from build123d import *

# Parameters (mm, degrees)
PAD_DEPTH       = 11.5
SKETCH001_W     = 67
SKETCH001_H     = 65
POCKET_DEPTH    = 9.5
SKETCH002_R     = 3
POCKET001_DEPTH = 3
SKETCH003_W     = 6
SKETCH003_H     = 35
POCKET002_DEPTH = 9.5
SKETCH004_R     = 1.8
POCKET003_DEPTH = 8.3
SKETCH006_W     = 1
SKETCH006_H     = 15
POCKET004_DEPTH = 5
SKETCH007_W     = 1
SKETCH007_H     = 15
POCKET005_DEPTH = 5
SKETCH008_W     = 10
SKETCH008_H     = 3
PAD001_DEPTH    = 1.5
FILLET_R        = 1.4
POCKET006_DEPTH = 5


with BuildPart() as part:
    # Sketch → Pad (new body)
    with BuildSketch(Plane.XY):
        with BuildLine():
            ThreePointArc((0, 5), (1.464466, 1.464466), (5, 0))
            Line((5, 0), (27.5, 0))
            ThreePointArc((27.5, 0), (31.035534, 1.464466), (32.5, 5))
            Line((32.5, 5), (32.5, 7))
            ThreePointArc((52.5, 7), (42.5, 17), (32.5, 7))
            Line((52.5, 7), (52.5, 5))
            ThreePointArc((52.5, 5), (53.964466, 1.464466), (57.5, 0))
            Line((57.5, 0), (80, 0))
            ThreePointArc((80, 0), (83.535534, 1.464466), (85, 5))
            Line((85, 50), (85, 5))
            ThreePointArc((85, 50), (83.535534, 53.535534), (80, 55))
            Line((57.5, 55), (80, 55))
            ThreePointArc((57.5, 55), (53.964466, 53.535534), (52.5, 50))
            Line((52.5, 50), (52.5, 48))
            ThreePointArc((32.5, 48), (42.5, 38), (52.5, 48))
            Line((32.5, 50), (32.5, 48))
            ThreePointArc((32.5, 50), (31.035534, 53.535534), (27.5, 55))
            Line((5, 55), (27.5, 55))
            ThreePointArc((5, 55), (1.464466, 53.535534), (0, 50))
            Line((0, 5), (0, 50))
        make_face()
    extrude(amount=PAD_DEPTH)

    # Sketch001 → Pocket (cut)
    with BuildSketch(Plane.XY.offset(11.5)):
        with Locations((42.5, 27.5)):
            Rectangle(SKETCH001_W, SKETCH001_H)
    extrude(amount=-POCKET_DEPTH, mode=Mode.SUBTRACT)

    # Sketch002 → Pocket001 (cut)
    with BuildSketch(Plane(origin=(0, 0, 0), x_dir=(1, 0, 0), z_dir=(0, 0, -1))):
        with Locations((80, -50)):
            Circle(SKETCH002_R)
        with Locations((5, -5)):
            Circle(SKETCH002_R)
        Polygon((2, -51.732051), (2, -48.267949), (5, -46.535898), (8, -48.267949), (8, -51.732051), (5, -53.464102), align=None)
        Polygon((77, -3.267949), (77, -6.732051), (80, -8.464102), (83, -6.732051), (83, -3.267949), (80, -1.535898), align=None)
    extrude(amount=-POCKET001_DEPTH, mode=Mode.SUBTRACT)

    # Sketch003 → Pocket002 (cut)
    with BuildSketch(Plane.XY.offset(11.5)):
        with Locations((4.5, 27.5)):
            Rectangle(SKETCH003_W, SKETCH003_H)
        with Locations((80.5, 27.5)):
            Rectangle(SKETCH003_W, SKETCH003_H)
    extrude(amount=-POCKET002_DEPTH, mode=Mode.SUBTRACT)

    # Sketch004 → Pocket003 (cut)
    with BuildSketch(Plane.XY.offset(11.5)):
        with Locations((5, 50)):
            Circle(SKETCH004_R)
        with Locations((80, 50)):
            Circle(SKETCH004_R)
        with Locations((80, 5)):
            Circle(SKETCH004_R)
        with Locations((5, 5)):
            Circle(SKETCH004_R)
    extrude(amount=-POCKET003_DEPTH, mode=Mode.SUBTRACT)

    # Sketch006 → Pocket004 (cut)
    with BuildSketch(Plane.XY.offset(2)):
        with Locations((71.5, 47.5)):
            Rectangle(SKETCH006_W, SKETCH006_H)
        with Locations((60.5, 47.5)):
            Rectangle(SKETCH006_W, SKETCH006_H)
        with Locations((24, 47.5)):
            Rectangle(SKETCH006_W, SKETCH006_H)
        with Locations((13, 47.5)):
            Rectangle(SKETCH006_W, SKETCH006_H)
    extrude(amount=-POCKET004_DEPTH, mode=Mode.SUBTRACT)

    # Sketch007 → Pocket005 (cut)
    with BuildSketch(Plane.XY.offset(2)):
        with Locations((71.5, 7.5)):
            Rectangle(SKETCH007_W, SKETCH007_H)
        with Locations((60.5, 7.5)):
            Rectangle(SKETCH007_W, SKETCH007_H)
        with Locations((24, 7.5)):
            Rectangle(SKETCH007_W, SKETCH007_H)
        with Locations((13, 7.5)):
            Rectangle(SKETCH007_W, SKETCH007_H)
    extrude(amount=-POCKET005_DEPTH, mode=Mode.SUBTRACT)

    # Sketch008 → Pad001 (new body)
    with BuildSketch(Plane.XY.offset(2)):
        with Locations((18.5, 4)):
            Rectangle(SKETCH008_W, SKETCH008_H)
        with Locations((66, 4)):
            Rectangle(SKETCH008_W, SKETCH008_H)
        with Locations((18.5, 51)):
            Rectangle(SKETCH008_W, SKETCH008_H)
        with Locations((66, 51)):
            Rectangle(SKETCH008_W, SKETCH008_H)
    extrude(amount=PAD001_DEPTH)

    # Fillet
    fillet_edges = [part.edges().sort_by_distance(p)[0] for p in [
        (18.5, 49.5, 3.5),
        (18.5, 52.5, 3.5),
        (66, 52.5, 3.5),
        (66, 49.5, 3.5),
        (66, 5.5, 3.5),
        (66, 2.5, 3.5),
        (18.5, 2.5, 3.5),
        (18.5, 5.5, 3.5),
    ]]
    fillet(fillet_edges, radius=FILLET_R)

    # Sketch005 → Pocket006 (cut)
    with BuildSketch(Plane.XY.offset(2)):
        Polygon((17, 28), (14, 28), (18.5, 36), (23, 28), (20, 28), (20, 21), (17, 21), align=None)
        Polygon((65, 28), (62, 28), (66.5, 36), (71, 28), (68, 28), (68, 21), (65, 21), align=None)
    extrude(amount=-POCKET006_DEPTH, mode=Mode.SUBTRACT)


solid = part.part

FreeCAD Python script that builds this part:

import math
import FreeCAD as App
import Part
import Sketcher

V = App.Vector
Q = App.Units.Quantity


def edges_at(feature, points):
    """Names of the edges that pass closest to the given points."""
    edges = feature.Shape.Edges
    near = lambda p: min(range(len(edges)), key=lambda i: edges[i].distToShape(Part.Vertex(*p))[0])
    return sorted({f"Edge{near(p) + 1}" for p in points})

doc = App.newDocument("Part")
body = doc.addObject("PartDesign::Body", "Body")

# Sketch on XY plane
sketch1 = body.newObject("Sketcher::SketchObject", "Sketch")
sketch1.AttachmentSupport = (doc.getObject("XY_Plane"), [""])
sketch1.MapMode = "FlatFace"
sketch1.addGeometry([
    Part.ArcOfCircle(Part.Circle(V(5, 5, 0), V(0, 0, 1), 5), math.radians(180), math.radians(270)),  # 0
    Part.LineSegment(V(5, 0, 0), V(27.5, 0, 0)),  # 1
    Part.ArcOfCircle(Part.Circle(V(27.5, 5, 0), V(0, 0, 1), 5), math.radians(-90), math.radians(0)),  # 2
    Part.LineSegment(V(32.5, 5, 0), V(32.5, 7, 0)),  # 3
    Part.ArcOfCircle(Part.Circle(V(42.5, 7, 0), V(0, 0, 1), 10), math.radians(0), math.radians(180)),  # 4
    Part.LineSegment(V(52.5, 7, 0), V(52.5, 5, 0)),  # 5
    Part.ArcOfCircle(Part.Circle(V(57.5, 5, 0), V(0, 0, 1), 5), math.radians(180), math.radians(270)),  # 6
    Part.LineSegment(V(57.5, 0, 0), V(80, 0, 0)),  # 7
    Part.ArcOfCircle(Part.Circle(V(80, 5, 0), V(0, 0, 1), 5), math.radians(-90), math.radians(0)),  # 8
    Part.LineSegment(V(85, 5, 0), V(85, 50, 0)),  # 9
    Part.ArcOfCircle(Part.Circle(V(80, 50, 0), V(0, 0, 1), 5), math.radians(0), math.radians(90)),  # 10
    Part.LineSegment(V(80, 55, 0), V(57.5, 55, 0)),  # 11
    Part.ArcOfCircle(Part.Circle(V(57.5, 50, 0), V(0, 0, 1), 5), math.radians(90), math.radians(180)),  # 12
    Part.LineSegment(V(52.5, 50, 0), V(52.5, 48, 0)),  # 13
    Part.ArcOfCircle(Part.Circle(V(42.5, 48, 0), V(0, 0, 1), 10), math.radians(180), math.radians(360)),  # 14
    Part.LineSegment(V(32.5, 48, 0), V(32.5, 50, 0)),  # 15
    Part.ArcOfCircle(Part.Circle(V(27.5, 50, 0), V(0, 0, 1), 5), math.radians(0), math.radians(90)),  # 16
    Part.LineSegment(V(27.5, 55, 0), V(5, 55, 0)),  # 17
    Part.ArcOfCircle(Part.Circle(V(5, 50, 0), V(0, 0, 1), 5), math.radians(90), math.radians(180)),  # 18
    Part.LineSegment(V(0, 50, 0), V(0, 5, 0)),  # 19
], False)
sketch1.addConstraint([
    Sketcher.Constraint("Tangent", 0, 2, 1, 1),
    Sketcher.Constraint("Tangent", 1, 2, 2, 1),
    Sketcher.Constraint("Tangent", 2, 2, 3, 1),
    Sketcher.Constraint("Tangent", 3, 2, 4, 2),
    Sketcher.Constraint("Tangent", 4, 1, 5, 1),
    Sketcher.Constraint("Tangent", 5, 2, 6, 1),
    Sketcher.Constraint("Tangent", 6, 2, 7, 1),
    Sketcher.Constraint("Tangent", 7, 2, 8, 1),
    Sketcher.Constraint("Tangent", 8, 2, 9, 1),
    Sketcher.Constraint("Tangent", 9, 2, 10, 1),
    Sketcher.Constraint("Tangent", 10, 2, 11, 1),
    Sketcher.Constraint("Tangent", 11, 2, 12, 1),
    Sketcher.Constraint("Tangent", 12, 2, 13, 1),
    Sketcher.Constraint("Tangent", 13, 2, 14, 2),
    Sketcher.Constraint("Tangent", 14, 1, 15, 1),
    Sketcher.Constraint("Tangent", 15, 2, 16, 1),
    Sketcher.Constraint("Tangent", 16, 2, 17, 1),
    Sketcher.Constraint("Tangent", 17, 2, 18, 1),
    Sketcher.Constraint("Tangent", 18, 2, 19, 1),
    Sketcher.Constraint("Tangent", 19, 2, 0, 1),
    Sketcher.Constraint("Horizontal", 1),
    Sketcher.Constraint("Vertical", 3),
    Sketcher.Constraint("Vertical", 5),
    Sketcher.Constraint("Horizontal", 7),
    Sketcher.Constraint("Vertical", 9),
    Sketcher.Constraint("Horizontal", 11),
    Sketcher.Constraint("Vertical", 13),
    Sketcher.Constraint("Vertical", 15),
    Sketcher.Constraint("Horizontal", 17),
    Sketcher.Constraint("Vertical", 19),
    Sketcher.Constraint("Equal", 0, 2),
    Sketcher.Constraint("Equal", 2, 6),
    Sketcher.Constraint("Equal", 6, 8),
    Sketcher.Constraint("Equal", 8, 10),
    Sketcher.Constraint("Equal", 10, 12),
    Sketcher.Constraint("Equal", 4, 14),
    Sketcher.Constraint("Equal", 12, 16),
    Sketcher.Constraint("Equal", 16, 18),
    Sketcher.Constraint("PointOnObject", 0, 2, -1),
    Sketcher.Constraint("PointOnObject", 6, 2, -1),
    Sketcher.Constraint("PointOnObject", 18, 2, -2),
    Sketcher.Constraint("Horizontal", 12, 3, 16, 3),
    Sketcher.Constraint("Vertical", 6, 3, 12, 3),
    Sketcher.Constraint("Equal", 1, 7),
    Sketcher.Constraint("Equal", 5, 13),
    Sketcher.Constraint("Radius", 0, 5.0),
    Sketcher.Constraint("Radius", 4, 10.0),
    Sketcher.Constraint("DistanceY", 3, 1, 3, 2, 2.0),
    Sketcher.Constraint("DistanceY", 9, 1, 9, 2, 45.0),
    Sketcher.Constraint("DistanceX", 1, 1, 1, 2, 22.5),
])
pad1 = body.newObject("PartDesign::Pad", "Pad")
pad1.Profile = sketch1
pad1.Length = 11.5

# Sketch on XY plane
sketch2 = body.newObject("Sketcher::SketchObject", "Sketch001")
sketch2.AttachmentSupport = (doc.getObject("XY_Plane"), [""])
sketch2.MapMode = "FlatFace"
sketch2.AttachmentOffset = App.Placement(V(0, 0, 11.5), App.Rotation())
sketch2.addGeometry([
    Part.LineSegment(V(9, 60, 0), V(9, -5, 0)),
    Part.LineSegment(V(9, -5, 0), V(76, -5, 0)),
    Part.LineSegment(V(76, -5, 0), V(76, 60, 0)),
    Part.LineSegment(V(76, 60, 0), V(9, 60, 0)),
], False)
sketch2.addConstraint([
    Sketcher.Constraint("Coincident", 0, 2, 1, 1),
    Sketcher.Constraint("Coincident", 1, 2, 2, 1),
    Sketcher.Constraint("Coincident", 2, 2, 3, 1),
    Sketcher.Constraint("Coincident", 3, 2, 0, 1),
    Sketcher.Constraint("Vertical", 0),
    Sketcher.Constraint("Horizontal", 1),
    Sketcher.Constraint("Vertical", 2),
    Sketcher.Constraint("Horizontal", 3),
    Sketcher.Constraint("DistanceX", 1, 1, 1, 2, 67.0),
    Sketcher.Constraint("DistanceY", 0, 2, 0, 1, 65.0),
    Sketcher.Constraint("DistanceX", -1, 1, 0, 2, 9.0),
    Sketcher.Constraint("DistanceY", 0, 2, -1, 1, 5.0),
])
pocket1 = body.newObject("PartDesign::Pocket", "Pocket")
pocket1.Profile = sketch2
pocket1.Length = 9.5

# Sketch on XY plane
sketch3 = body.newObject("Sketcher::SketchObject", "Sketch002")
sketch3.AttachmentSupport = (doc.getObject("XY_Plane"), [""])
sketch3.MapMode = "FlatFace"
sketch3.addGeometry([
    Part.Circle(V(80, 50, 0), V(0, 0, 1), 3),  # 0
    Part.Circle(V(5, 5, 0), V(0, 0, 1), 3),  # 1
    Part.LineSegment(V(2, 48.3, 0), V(2, 51.7, 0)),  # 2
    Part.LineSegment(V(2, 51.7, 0), V(5, 53.5, 0)),  # 3
    Part.LineSegment(V(5, 53.5, 0), V(8, 51.7, 0)),  # 4
    Part.LineSegment(V(8, 51.7, 0), V(8, 48.3, 0)),  # 5
    Part.LineSegment(V(8, 48.3, 0), V(5, 46.5, 0)),  # 6
    Part.LineSegment(V(5, 46.5, 0), V(2, 48.3, 0)),  # 7
    Part.LineSegment(V(77, 3.3, 0), V(77, 6.7, 0)),  # 8
    Part.LineSegment(V(77, 6.7, 0), V(80, 8.5, 0)),  # 9
    Part.LineSegment(V(80, 8.5, 0), V(83, 6.7, 0)),  # 10
    Part.LineSegment(V(83, 6.7, 0), V(83, 3.3, 0)),  # 11
    Part.LineSegment(V(83, 3.3, 0), V(80, 1.5, 0)),  # 12
    Part.LineSegment(V(80, 1.5, 0), V(77, 3.3, 0)),  # 13
], False)
sketch3.addConstraint([
    Sketcher.Constraint("Coincident", 2, 2, 3, 1),
    Sketcher.Constraint("Coincident", 3, 2, 4, 1),
    Sketcher.Constraint("Coincident", 4, 2, 5, 1),
    Sketcher.Constraint("Coincident", 5, 2, 6, 1),
    Sketcher.Constraint("Coincident", 6, 2, 7, 1),
    Sketcher.Constraint("Coincident", 7, 2, 2, 1),
    Sketcher.Constraint("Coincident", 8, 2, 9, 1),
    Sketcher.Constraint("Coincident", 9, 2, 10, 1),
    Sketcher.Constraint("Coincident", 10, 2, 11, 1),
    Sketcher.Constraint("Coincident", 11, 2, 12, 1),
    Sketcher.Constraint("Coincident", 12, 2, 13, 1),
    Sketcher.Constraint("Coincident", 13, 2, 8, 1),
    Sketcher.Constraint("Vertical", 2),
    Sketcher.Constraint("Vertical", 5),
    Sketcher.Constraint("Vertical", 8),
    Sketcher.Constraint("Vertical", 11),
    Sketcher.Constraint("Equal", 0, 1),
    Sketcher.Constraint("Parallel", 3, 6),
    Sketcher.Constraint("Parallel", 4, 7),
    Sketcher.Constraint("Parallel", 6, 9),
    Sketcher.Constraint("Parallel", 7, 10),
    Sketcher.Constraint("Parallel", 9, 12),
    Sketcher.Constraint("Parallel", 10, 13),
    Sketcher.Constraint("Horizontal", 2, 2, 4, 2),
    Sketcher.Constraint("Horizontal", 5, 2, 7, 2),
    Sketcher.Constraint("Horizontal", 8, 2, 10, 2),
    Sketcher.Constraint("Horizontal", 11, 2, 13, 2),
    Sketcher.Constraint("Vertical", 1, 3, 3, 2),
    Sketcher.Constraint("Vertical", 3, 2, 6, 2),
    Sketcher.Constraint("Vertical", 0, 3, 9, 2),
    Sketcher.Constraint("Equal", 5, 8),
    Sketcher.Constraint("Equal", 7, 9),
    Sketcher.Constraint("Diameter", 0, 6.0),
    Sketcher.Constraint("Angle", 3, Q("30.000003 deg")),
    Sketcher.Constraint("DistanceX", -1, 1, 0, 3, 80.0),
    Sketcher.Constraint("DistanceY", -1, 1, 0, 3, 50.0),
    Sketcher.Constraint("DistanceX", -1, 1, 1, 3, 5.0),
    Sketcher.Constraint("DistanceY", -1, 1, 1, 3, 5.0),
    Sketcher.Constraint("DistanceX", -1, 1, 2, 2, 2.0),
    Sketcher.Constraint("DistanceY", 8, 2, 4, 2, 45.0),
    Sketcher.Constraint("DistanceY", 2, 1, 2, 2, 3.464102),
    Sketcher.Constraint("DistanceY", -1, 1, 3, 2, 53.464102),
])
pocket2 = body.newObject("PartDesign::Pocket", "Pocket001")
pocket2.Profile = sketch3
pocket2.Length = 3
pocket2.Reversed = True

# Sketch on XY plane
sketch4 = body.newObject("Sketcher::SketchObject", "Sketch003")
sketch4.AttachmentSupport = (doc.getObject("XY_Plane"), [""])
sketch4.MapMode = "FlatFace"
sketch4.AttachmentOffset = App.Placement(V(0, 0, 11.5), App.Rotation())
sketch4.addGeometry([
    Part.LineSegment(V(2, 45, 0), V(2, 10, 0)),  # 0
    Part.LineSegment(V(2, 10, 0), V(8, 10, 0)),  # 1
    Part.LineSegment(V(8, 10, 0), V(8, 45, 0)),  # 2
    Part.LineSegment(V(8, 45, 0), V(2, 45, 0)),  # 3
    Part.LineSegment(V(78, 45, 0), V(78, 10, 0)),  # 4
    Part.LineSegment(V(78, 10, 0), V(84, 10, 0)),  # 5
    Part.LineSegment(V(84, 10, 0), V(84, 45, 0)),  # 6
    Part.LineSegment(V(84, 45, 0), V(78, 45, 0)),  # 7
], False)
sketch4.addConstraint([
    Sketcher.Constraint("Coincident", 0, 2, 1, 1),
    Sketcher.Constraint("Coincident", 1, 2, 2, 1),
    Sketcher.Constraint("Coincident", 2, 2, 3, 1),
    Sketcher.Constraint("Coincident", 3, 2, 0, 1),
    Sketcher.Constraint("Coincident", 4, 2, 5, 1),
    Sketcher.Constraint("Coincident", 5, 2, 6, 1),
    Sketcher.Constraint("Coincident", 6, 2, 7, 1),
    Sketcher.Constraint("Coincident", 7, 2, 4, 1),
    Sketcher.Constraint("Vertical", 0),
    Sketcher.Constraint("Horizontal", 1),
    Sketcher.Constraint("Vertical", 2),
    Sketcher.Constraint("Horizontal", 3),
    Sketcher.Constraint("Vertical", 4),
    Sketcher.Constraint("Horizontal", 5),
    Sketcher.Constraint("Vertical", 6),
    Sketcher.Constraint("Horizontal", 7),
    Sketcher.Constraint("Horizontal", 1, 2, 4, 2),
    Sketcher.Constraint("Horizontal", 3, 2, 6, 2),
    Sketcher.Constraint("Equal", 3, 5),
    Sketcher.Constraint("DistanceX", 1, 1, 1, 2, 6.0),
    Sketcher.Constraint("DistanceY", 0, 2, 0, 1, 35.0),
    Sketcher.Constraint("DistanceY", -1, 1, 0, 2, 10.0),
    Sketcher.Constraint("DistanceX", 1, 2, 4, 2, 70.0),
    Sketcher.Constraint("DistanceX", -1, 1, 0, 2, 1.5),
])
pocket3 = body.newObject("PartDesign::Pocket", "Pocket002")
pocket3.Profile = sketch4
pocket3.Length = 9.5

# Sketch on XY plane
sketch5 = body.newObject("Sketcher::SketchObject", "Sketch004")
sketch5.AttachmentSupport = (doc.getObject("XY_Plane"), [""])
sketch5.MapMode = "FlatFace"
sketch5.AttachmentOffset = App.Placement(V(0, 0, 11.5), App.Rotation())
sketch5.addGeometry([
    Part.Circle(V(5, 50, 0), V(0, 0, 1), 1.8),
    Part.Circle(V(80, 50, 0), V(0, 0, 1), 1.8),
    Part.Circle(V(80, 5, 0), V(0, 0, 1), 1.8),
    Part.Circle(V(5, 5, 0), V(0, 0, 1), 1.8),
], False)
sketch5.addConstraint([
    Sketcher.Constraint("Equal", 0, 1),
    Sketcher.Constraint("Equal", 1, 2),
    Sketcher.Constraint("Equal", 2, 3),
    Sketcher.Constraint("Horizontal", 0, 3, 1, 3),
    Sketcher.Constraint("Horizontal", 2, 3, 3, 3),
    Sketcher.Constraint("Vertical", 1, 3, 2, 3),
    Sketcher.Constraint("Vertical", 0, 3, 3, 3),
    Sketcher.Constraint("Diameter", 0, 3.6),
    Sketcher.Constraint("DistanceX", -1, 1, 0, 3, 5.0),
    Sketcher.Constraint("DistanceY", -1, 1, 0, 3, 50.0),
    Sketcher.Constraint("DistanceX", -1, 1, 1, 3, 80.0),
    Sketcher.Constraint("DistanceY", -1, 1, 2, 3, 5.0),
])
pocket4 = body.newObject("PartDesign::Pocket", "Pocket003")
pocket4.Profile = sketch5
pocket4.Length = 8.3

# Sketch on XY plane
sketch6 = body.newObject("Sketcher::SketchObject", "Sketch005")
sketch6.AttachmentSupport = (doc.getObject("XY_Plane"), [""])
sketch6.MapMode = "FlatFace"
sketch6.AttachmentOffset = App.Placement(V(0, 0, 2), App.Rotation())
sketch6.addGeometry([
    Part.LineSegment(V(71, 55, 0), V(71, 40, 0)),  # 0
    Part.LineSegment(V(71, 40, 0), V(72, 40, 0)),  # 1
    Part.LineSegment(V(72, 40, 0), V(72, 55, 0)),  # 2
    Part.LineSegment(V(72, 55, 0), V(71, 55, 0)),  # 3
    Part.LineSegment(V(60, 55, 0), V(60, 40, 0)),  # 4
    Part.LineSegment(V(60, 40, 0), V(61, 40, 0)),  # 5
    Part.LineSegment(V(61, 40, 0), V(61, 55, 0)),  # 6
    Part.LineSegment(V(61, 55, 0), V(60, 55, 0)),  # 7
    Part.LineSegment(V(23.5, 55, 0), V(23.5, 40, 0)),  # 8
    Part.LineSegment(V(23.5, 40, 0), V(24.5, 40, 0)),  # 9
    Part.LineSegment(V(24.5, 40, 0), V(24.5, 55, 0)),  # 10
    Part.LineSegment(V(24.5, 55, 0), V(23.5, 55, 0)),  # 11
    Part.LineSegment(V(12.5, 55, 0), V(12.5, 40, 0)),  # 12
    Part.LineSegment(V(12.5, 40, 0), V(13.5, 40, 0)),  # 13
    Part.LineSegment(V(13.5, 40, 0), V(13.5, 55, 0)),  # 14
    Part.LineSegment(V(13.5, 55, 0), V(12.5, 55, 0)),  # 15
], False)
sketch6.addConstraint([
    Sketcher.Constraint("Coincident", 0, 2, 1, 1),
    Sketcher.Constraint("Coincident", 1, 2, 2, 1),
    Sketcher.Constraint("Coincident", 2, 2, 3, 1),
    Sketcher.Constraint("Coincident", 3, 2, 0, 1),
    Sketcher.Constraint("Coincident", 4, 2, 5, 1),
    Sketcher.Constraint("Coincident", 5, 2, 6, 1),
    Sketcher.Constraint("Coincident", 6, 2, 7, 1),
    Sketcher.Constraint("Coincident", 7, 2, 4, 1),
    Sketcher.Constraint("Coincident", 8, 2, 9, 1),
    Sketcher.Constraint("Coincident", 9, 2, 10, 1),
    Sketcher.Constraint("Coincident", 10, 2, 11, 1),
    Sketcher.Constraint("Coincident", 11, 2, 8, 1),
    Sketcher.Constraint("Coincident", 12, 2, 13, 1),
    Sketcher.Constraint("Coincident", 13, 2, 14, 1),
    Sketcher.Constraint("Coincident", 14, 2, 15, 1),
    Sketcher.Constraint("Coincident", 15, 2, 12, 1),
    Sketcher.Constraint("Vertical", 0),
    Sketcher.Constraint("Horizontal", 1),
    Sketcher.Constraint("Vertical", 2),
    Sketcher.Constraint("Horizontal", 3),
    Sketcher.Constraint("Vertical", 4),
    Sketcher.Constraint("Horizontal", 5),
    Sketcher.Constraint("Vertical", 6),
    Sketcher.Constraint("Horizontal", 7),
    Sketcher.Constraint("Vertical", 8),
    Sketcher.Constraint("Horizontal", 9),
    Sketcher.Constraint("Vertical", 10),
    Sketcher.Constraint("Horizontal", 11),
    Sketcher.Constraint("Vertical", 12),
    Sketcher.Constraint("Horizontal", 13),
    Sketcher.Constraint("Vertical", 14),
    Sketcher.Constraint("Horizontal", 15),
    Sketcher.Constraint("Horizontal", 1, 2, 4, 2),
    Sketcher.Constraint("Horizontal", 3, 2, 6, 2),
    Sketcher.Constraint("Horizontal", 5, 2, 8, 2),
    Sketcher.Constraint("Horizontal", 7, 2, 10, 2),
    Sketcher.Constraint("Horizontal", 9, 2, 12, 2),
    Sketcher.Constraint("Horizontal", 11, 2, 14, 2),
    Sketcher.Constraint("Equal", 3, 5),
    Sketcher.Constraint("Equal", 7, 9),
    Sketcher.Constraint("Equal", 11, 13),
    Sketcher.Constraint("DistanceX", 1, 1, 1, 2, 1.0),
    Sketcher.Constraint("DistanceY", 0, 2, 0, 1, 15.0),
    Sketcher.Constraint("DistanceX", -1, 1, 0, 2, 71.0),
    Sketcher.Constraint("DistanceY", -1, 1, 0, 2, 40.0),
    Sketcher.Constraint("DistanceX", -1, 1, 4, 2, 60.0),
    Sketcher.Constraint("DistanceX", 12, 2, 8, 2, 11.0),
    Sketcher.Constraint("DistanceX", -1, 1, 8, 2, 23.5),
])
pocket5 = body.newObject("PartDesign::Pocket", "Pocket004")
pocket5.Profile = sketch6
pocket5.Length = 5

# Sketch on XY plane
sketch7 = body.newObject("Sketcher::SketchObject", "Sketch006")
sketch7.AttachmentSupport = (doc.getObject("XY_Plane"), [""])
sketch7.MapMode = "FlatFace"
sketch7.AttachmentOffset = App.Placement(V(0, 0, 2), App.Rotation())
sketch7.addGeometry([
    Part.LineSegment(V(71, 15, 0), V(71, 0, 0)),  # 0
    Part.LineSegment(V(71, 0, 0), V(72, 0, 0)),  # 1
    Part.LineSegment(V(72, 0, 0), V(72, 15, 0)),  # 2
    Part.LineSegment(V(72, 15, 0), V(71, 15, 0)),  # 3
    Part.LineSegment(V(60, 15, 0), V(60, 0, 0)),  # 4
    Part.LineSegment(V(60, 0, 0), V(61, 0, 0)),  # 5
    Part.LineSegment(V(61, 0, 0), V(61, 15, 0)),  # 6
    Part.LineSegment(V(61, 15, 0), V(60, 15, 0)),  # 7
    Part.LineSegment(V(23.5, 15, 0), V(23.5, 0, 0)),  # 8
    Part.LineSegment(V(23.5, 0, 0), V(24.5, 0, 0)),  # 9
    Part.LineSegment(V(24.5, 0, 0), V(24.5, 15, 0)),  # 10
    Part.LineSegment(V(24.5, 15, 0), V(23.5, 15, 0)),  # 11
    Part.LineSegment(V(12.5, 15, 0), V(12.5, 0, 0)),  # 12
    Part.LineSegment(V(12.5, 0, 0), V(13.5, 0, 0)),  # 13
    Part.LineSegment(V(13.5, 0, 0), V(13.5, 15, 0)),  # 14
    Part.LineSegment(V(13.5, 15, 0), V(12.5, 15, 0)),  # 15
], False)
sketch7.addConstraint([
    Sketcher.Constraint("Coincident", 0, 2, 1, 1),
    Sketcher.Constraint("Coincident", 1, 2, 2, 1),
    Sketcher.Constraint("Coincident", 2, 2, 3, 1),
    Sketcher.Constraint("Coincident", 3, 2, 0, 1),
    Sketcher.Constraint("Coincident", 4, 2, 5, 1),
    Sketcher.Constraint("Coincident", 5, 2, 6, 1),
    Sketcher.Constraint("Coincident", 6, 2, 7, 1),
    Sketcher.Constraint("Coincident", 7, 2, 4, 1),
    Sketcher.Constraint("Coincident", 8, 2, 9, 1),
    Sketcher.Constraint("Coincident", 9, 2, 10, 1),
    Sketcher.Constraint("Coincident", 10, 2, 11, 1),
    Sketcher.Constraint("Coincident", 11, 2, 8, 1),
    Sketcher.Constraint("Coincident", 12, 2, 13, 1),
    Sketcher.Constraint("Coincident", 13, 2, 14, 1),
    Sketcher.Constraint("Coincident", 14, 2, 15, 1),
    Sketcher.Constraint("Coincident", 15, 2, 12, 1),
    Sketcher.Constraint("Vertical", 0),
    Sketcher.Constraint("Horizontal", 1),
    Sketcher.Constraint("Vertical", 2),
    Sketcher.Constraint("Horizontal", 3),
    Sketcher.Constraint("Vertical", 4),
    Sketcher.Constraint("Horizontal", 5),
    Sketcher.Constraint("Vertical", 6),
    Sketcher.Constraint("Horizontal", 7),
    Sketcher.Constraint("Vertical", 8),
    Sketcher.Constraint("Horizontal", 9),
    Sketcher.Constraint("Vertical", 10),
    Sketcher.Constraint("Horizontal", 11),
    Sketcher.Constraint("Vertical", 12),
    Sketcher.Constraint("Horizontal", 13),
    Sketcher.Constraint("Vertical", 14),
    Sketcher.Constraint("Horizontal", 15),
    Sketcher.Constraint("PointOnObject", 0, 2, -1),
    Sketcher.Constraint("PointOnObject", 4, 2, -1),
    Sketcher.Constraint("PointOnObject", 8, 2, -1),
    Sketcher.Constraint("PointOnObject", 12, 2, -1),
    Sketcher.Constraint("Horizontal", 3, 2, 6, 2),
    Sketcher.Constraint("Horizontal", 7, 2, 10, 2),
    Sketcher.Constraint("Horizontal", 11, 2, 14, 2),
    Sketcher.Constraint("Equal", 3, 5),
    Sketcher.Constraint("Equal", 7, 9),
    Sketcher.Constraint("Equal", 11, 13),
    Sketcher.Constraint("DistanceX", 1, 1, 1, 2, 1.0),
    Sketcher.Constraint("DistanceY", 0, 2, 0, 1, 15.0),
    Sketcher.Constraint("DistanceX", -1, 1, 0, 2, 71.0),
    Sketcher.Constraint("DistanceX", -1, 1, 4, 2, 60.0),
    Sketcher.Constraint("DistanceX", 12, 2, 8, 2, 11.0),
    Sketcher.Constraint("DistanceX", -1, 1, 8, 2, 23.5),
])
pocket6 = body.newObject("PartDesign::Pocket", "Pocket005")
pocket6.Profile = sketch7
pocket6.Length = 5

# Sketch on XY plane
sketch8 = body.newObject("Sketcher::SketchObject", "Sketch007")
sketch8.AttachmentSupport = (doc.getObject("XY_Plane"), [""])
sketch8.MapMode = "FlatFace"
sketch8.AttachmentOffset = App.Placement(V(0, 0, 2), App.Rotation())
sketch8.addGeometry([
    Part.LineSegment(V(13.5, 5.5, 0), V(13.5, 2.5, 0)),  # 0
    Part.LineSegment(V(13.5, 2.5, 0), V(23.5, 2.5, 0)),  # 1
    Part.LineSegment(V(23.5, 2.5, 0), V(23.5, 5.5, 0)),  # 2
    Part.LineSegment(V(23.5, 5.5, 0), V(13.5, 5.5, 0)),  # 3
    Part.LineSegment(V(61, 5.5, 0), V(61, 2.5, 0)),  # 4
    Part.LineSegment(V(61, 2.5, 0), V(71, 2.5, 0)),  # 5
    Part.LineSegment(V(71, 2.5, 0), V(71, 5.5, 0)),  # 6
    Part.LineSegment(V(71, 5.5, 0), V(61, 5.5, 0)),  # 7
    Part.LineSegment(V(13.5, 52.5, 0), V(13.5, 49.5, 0)),  # 8
    Part.LineSegment(V(13.5, 49.5, 0), V(23.5, 49.5, 0)),  # 9
    Part.LineSegment(V(23.5, 49.5, 0), V(23.5, 52.5, 0)),  # 10
    Part.LineSegment(V(23.5, 52.5, 0), V(13.5, 52.5, 0)),  # 11
    Part.LineSegment(V(61, 52.5, 0), V(61, 49.5, 0)),  # 12
    Part.LineSegment(V(61, 49.5, 0), V(71, 49.5, 0)),  # 13
    Part.LineSegment(V(71, 49.5, 0), V(71, 52.5, 0)),  # 14
    Part.LineSegment(V(71, 52.5, 0), V(61, 52.5, 0)),  # 15
], False)
sketch8.addConstraint([
    Sketcher.Constraint("Coincident", 0, 2, 1, 1),
    Sketcher.Constraint("Coincident", 1, 2, 2, 1),
    Sketcher.Constraint("Coincident", 2, 2, 3, 1),
    Sketcher.Constraint("Coincident", 3, 2, 0, 1),
    Sketcher.Constraint("Coincident", 4, 2, 5, 1),
    Sketcher.Constraint("Coincident", 5, 2, 6, 1),
    Sketcher.Constraint("Coincident", 6, 2, 7, 1),
    Sketcher.Constraint("Coincident", 7, 2, 4, 1),
    Sketcher.Constraint("Coincident", 8, 2, 9, 1),
    Sketcher.Constraint("Coincident", 9, 2, 10, 1),
    Sketcher.Constraint("Coincident", 10, 2, 11, 1),
    Sketcher.Constraint("Coincident", 11, 2, 8, 1),
    Sketcher.Constraint("Coincident", 12, 2, 13, 1),
    Sketcher.Constraint("Coincident", 13, 2, 14, 1),
    Sketcher.Constraint("Coincident", 14, 2, 15, 1),
    Sketcher.Constraint("Coincident", 15, 2, 12, 1),
    Sketcher.Constraint("Vertical", 0),
    Sketcher.Constraint("Horizontal", 1),
    Sketcher.Constraint("Vertical", 2),
    Sketcher.Constraint("Horizontal", 3),
    Sketcher.Constraint("Vertical", 4),
    Sketcher.Constraint("Horizontal", 5),
    Sketcher.Constraint("Vertical", 6),
    Sketcher.Constraint("Horizontal", 7),
    Sketcher.Constraint("Vertical", 8),
    Sketcher.Constraint("Horizontal", 9),
    Sketcher.Constraint("Vertical", 10),
    Sketcher.Constraint("Horizontal", 11),
    Sketcher.Constraint("Vertical", 12),
    Sketcher.Constraint("Horizontal", 13),
    Sketcher.Constraint("Vertical", 14),
    Sketcher.Constraint("Horizontal", 15),
    Sketcher.Constraint("Horizontal", 1, 2, 4, 2),
    Sketcher.Constraint("Horizontal", 3, 2, 6, 2),
    Sketcher.Constraint("Horizontal", 9, 2, 12, 2),
    Sketcher.Constraint("Horizontal", 11, 2, 14, 2),
    Sketcher.Constraint("Vertical", 3, 2, 8, 2),
    Sketcher.Constraint("Vertical", 2, 2, 9, 2),
    Sketcher.Constraint("Vertical", 7, 2, 12, 2),
    Sketcher.Constraint("Vertical", 6, 2, 13, 2),
    Sketcher.Constraint("Equal", 3, 5),
    Sketcher.Constraint("Equal", 6, 8),
    Sketcher.Constraint("DistanceX", 1, 1, 1, 2, 10.0),
    Sketcher.Constraint("DistanceY", 0, 2, 0, 1, 3.0),
    Sketcher.Constraint("DistanceX", -1, 1, 4, 2, 61.0),
    Sketcher.Constraint("DistanceY", 3, 2, 8, 2, 44.0),
    Sketcher.Constraint("DistanceX", -1, 1, 0, 2, 13.5),
    Sketcher.Constraint("DistanceY", -1, 1, 0, 2, 2.5),
])
pad2 = body.newObject("PartDesign::Pad", "Pad001")
pad2.Profile = sketch8
pad2.Length = 1.5
doc.recompute()

fillet = body.newObject("PartDesign::Fillet", "Fillet")
fillet.Base = (pad2, edges_at(pad2, [
    (18.5, 49.5, 3.5),
    (18.5, 52.5, 3.5),
    (66, 52.5, 3.5),
    (66, 49.5, 3.5),
    (66, 5.5, 3.5),
    (66, 2.5, 3.5),
    (18.5, 2.5, 3.5),
    (18.5, 5.5, 3.5),
]))
fillet.Radius = 1.4

# Sketch on XY plane
sketch9 = body.newObject("Sketcher::SketchObject", "Sketch008")
sketch9.AttachmentSupport = (doc.getObject("XY_Plane"), [""])
sketch9.MapMode = "FlatFace"
sketch9.AttachmentOffset = App.Placement(V(0, 0, 2), App.Rotation())
sketch9.addGeometry([
    Part.LineSegment(V(14, 28, 0), V(17, 28, 0)),  # 0
    Part.LineSegment(V(17, 28, 0), V(17, 21, 0)),  # 1
    Part.LineSegment(V(17, 21, 0), V(20, 21, 0)),  # 2
    Part.LineSegment(V(20, 21, 0), V(20, 28, 0)),  # 3
    Part.LineSegment(V(20, 28, 0), V(23, 28, 0)),  # 4
    Part.LineSegment(V(23, 28, 0), V(18.5, 36, 0)),  # 5
    Part.LineSegment(V(18.5, 36, 0), V(14, 28, 0)),  # 6
    Part.LineSegment(V(62, 28, 0), V(65, 28, 0)),  # 7
    Part.LineSegment(V(65, 28, 0), V(65, 21, 0)),  # 8
    Part.LineSegment(V(65, 21, 0), V(68, 21, 0)),  # 9
    Part.LineSegment(V(68, 21, 0), V(68, 28, 0)),  # 10
    Part.LineSegment(V(68, 28, 0), V(71, 28, 0)),  # 11
    Part.LineSegment(V(71, 28, 0), V(66.5, 36, 0)),  # 12
    Part.LineSegment(V(66.5, 36, 0), V(62, 28, 0)),  # 13
], False)
sketch9.addConstraint([
    Sketcher.Constraint("Coincident", 0, 2, 1, 1),
    Sketcher.Constraint("Coincident", 1, 2, 2, 1),
    Sketcher.Constraint("Coincident", 2, 2, 3, 1),
    Sketcher.Constraint("Coincident", 3, 2, 4, 1),
    Sketcher.Constraint("Coincident", 4, 2, 5, 1),
    Sketcher.Constraint("Coincident", 5, 2, 6, 1),
    Sketcher.Constraint("Coincident", 6, 2, 0, 1),
    Sketcher.Constraint("Coincident", 7, 2, 8, 1),
    Sketcher.Constraint("Coincident", 8, 2, 9, 1),
    Sketcher.Constraint("Coincident", 9, 2, 10, 1),
    Sketcher.Constraint("Coincident", 10, 2, 11, 1),
    Sketcher.Constraint("Coincident", 11, 2, 12, 1),
    Sketcher.Constraint("Coincident", 12, 2, 13, 1),
    Sketcher.Constraint("Coincident", 13, 2, 7, 1),
    Sketcher.Constraint("Horizontal", 0),
    Sketcher.Constraint("Vertical", 1),
    Sketcher.Constraint("Horizontal", 2),
    Sketcher.Constraint("Vertical", 3),
    Sketcher.Constraint("Horizontal", 4),
    Sketcher.Constraint("Horizontal", 7),
    Sketcher.Constraint("Vertical", 8),
    Sketcher.Constraint("Horizontal", 9),
    Sketcher.Constraint("Vertical", 10),
    Sketcher.Constraint("Horizontal", 11),
    Sketcher.Constraint("Parallel", 5, 12),
    Sketcher.Constraint("Parallel", 6, 13),
    Sketcher.Constraint("Horizontal", 0, 2, 3, 2),
    Sketcher.Constraint("Horizontal", 6, 2, 7, 2),
    Sketcher.Constraint("Horizontal", 2, 2, 8, 2),
    Sketcher.Constraint("Horizontal", 7, 2, 10, 2),
    Sketcher.Constraint("Horizontal", 5, 2, 12, 2),
    Sketcher.Constraint("Equal", 0, 2),
    Sketcher.Constraint("Equal", 2, 4),
    Sketcher.Constraint("Equal", 4, 7),
    Sketcher.Constraint("Equal", 7, 9),
    Sketcher.Constraint("Equal", 5, 6),
    Sketcher.Constraint("DistanceX", 0, 1, 0, 2, 3.0),
    Sketcher.Constraint("DistanceY", 1, 2, 1, 1, 7.0),
    Sketcher.Constraint("DistanceX", -1, 1, 0, 2, 17.0),
    Sketcher.Constraint("DistanceY", -1, 1, 0, 2, 28.0),
    Sketcher.Constraint("DistanceY", -1, 1, 5, 2, 36.0),
    Sketcher.Constraint("DistanceX", -1, 1, 7, 2, 65.0),
])
pocket7 = body.newObject("PartDesign::Pocket", "Pocket006")
pocket7.Profile = sketch9
pocket7.Length = 5

doc.recompute()
